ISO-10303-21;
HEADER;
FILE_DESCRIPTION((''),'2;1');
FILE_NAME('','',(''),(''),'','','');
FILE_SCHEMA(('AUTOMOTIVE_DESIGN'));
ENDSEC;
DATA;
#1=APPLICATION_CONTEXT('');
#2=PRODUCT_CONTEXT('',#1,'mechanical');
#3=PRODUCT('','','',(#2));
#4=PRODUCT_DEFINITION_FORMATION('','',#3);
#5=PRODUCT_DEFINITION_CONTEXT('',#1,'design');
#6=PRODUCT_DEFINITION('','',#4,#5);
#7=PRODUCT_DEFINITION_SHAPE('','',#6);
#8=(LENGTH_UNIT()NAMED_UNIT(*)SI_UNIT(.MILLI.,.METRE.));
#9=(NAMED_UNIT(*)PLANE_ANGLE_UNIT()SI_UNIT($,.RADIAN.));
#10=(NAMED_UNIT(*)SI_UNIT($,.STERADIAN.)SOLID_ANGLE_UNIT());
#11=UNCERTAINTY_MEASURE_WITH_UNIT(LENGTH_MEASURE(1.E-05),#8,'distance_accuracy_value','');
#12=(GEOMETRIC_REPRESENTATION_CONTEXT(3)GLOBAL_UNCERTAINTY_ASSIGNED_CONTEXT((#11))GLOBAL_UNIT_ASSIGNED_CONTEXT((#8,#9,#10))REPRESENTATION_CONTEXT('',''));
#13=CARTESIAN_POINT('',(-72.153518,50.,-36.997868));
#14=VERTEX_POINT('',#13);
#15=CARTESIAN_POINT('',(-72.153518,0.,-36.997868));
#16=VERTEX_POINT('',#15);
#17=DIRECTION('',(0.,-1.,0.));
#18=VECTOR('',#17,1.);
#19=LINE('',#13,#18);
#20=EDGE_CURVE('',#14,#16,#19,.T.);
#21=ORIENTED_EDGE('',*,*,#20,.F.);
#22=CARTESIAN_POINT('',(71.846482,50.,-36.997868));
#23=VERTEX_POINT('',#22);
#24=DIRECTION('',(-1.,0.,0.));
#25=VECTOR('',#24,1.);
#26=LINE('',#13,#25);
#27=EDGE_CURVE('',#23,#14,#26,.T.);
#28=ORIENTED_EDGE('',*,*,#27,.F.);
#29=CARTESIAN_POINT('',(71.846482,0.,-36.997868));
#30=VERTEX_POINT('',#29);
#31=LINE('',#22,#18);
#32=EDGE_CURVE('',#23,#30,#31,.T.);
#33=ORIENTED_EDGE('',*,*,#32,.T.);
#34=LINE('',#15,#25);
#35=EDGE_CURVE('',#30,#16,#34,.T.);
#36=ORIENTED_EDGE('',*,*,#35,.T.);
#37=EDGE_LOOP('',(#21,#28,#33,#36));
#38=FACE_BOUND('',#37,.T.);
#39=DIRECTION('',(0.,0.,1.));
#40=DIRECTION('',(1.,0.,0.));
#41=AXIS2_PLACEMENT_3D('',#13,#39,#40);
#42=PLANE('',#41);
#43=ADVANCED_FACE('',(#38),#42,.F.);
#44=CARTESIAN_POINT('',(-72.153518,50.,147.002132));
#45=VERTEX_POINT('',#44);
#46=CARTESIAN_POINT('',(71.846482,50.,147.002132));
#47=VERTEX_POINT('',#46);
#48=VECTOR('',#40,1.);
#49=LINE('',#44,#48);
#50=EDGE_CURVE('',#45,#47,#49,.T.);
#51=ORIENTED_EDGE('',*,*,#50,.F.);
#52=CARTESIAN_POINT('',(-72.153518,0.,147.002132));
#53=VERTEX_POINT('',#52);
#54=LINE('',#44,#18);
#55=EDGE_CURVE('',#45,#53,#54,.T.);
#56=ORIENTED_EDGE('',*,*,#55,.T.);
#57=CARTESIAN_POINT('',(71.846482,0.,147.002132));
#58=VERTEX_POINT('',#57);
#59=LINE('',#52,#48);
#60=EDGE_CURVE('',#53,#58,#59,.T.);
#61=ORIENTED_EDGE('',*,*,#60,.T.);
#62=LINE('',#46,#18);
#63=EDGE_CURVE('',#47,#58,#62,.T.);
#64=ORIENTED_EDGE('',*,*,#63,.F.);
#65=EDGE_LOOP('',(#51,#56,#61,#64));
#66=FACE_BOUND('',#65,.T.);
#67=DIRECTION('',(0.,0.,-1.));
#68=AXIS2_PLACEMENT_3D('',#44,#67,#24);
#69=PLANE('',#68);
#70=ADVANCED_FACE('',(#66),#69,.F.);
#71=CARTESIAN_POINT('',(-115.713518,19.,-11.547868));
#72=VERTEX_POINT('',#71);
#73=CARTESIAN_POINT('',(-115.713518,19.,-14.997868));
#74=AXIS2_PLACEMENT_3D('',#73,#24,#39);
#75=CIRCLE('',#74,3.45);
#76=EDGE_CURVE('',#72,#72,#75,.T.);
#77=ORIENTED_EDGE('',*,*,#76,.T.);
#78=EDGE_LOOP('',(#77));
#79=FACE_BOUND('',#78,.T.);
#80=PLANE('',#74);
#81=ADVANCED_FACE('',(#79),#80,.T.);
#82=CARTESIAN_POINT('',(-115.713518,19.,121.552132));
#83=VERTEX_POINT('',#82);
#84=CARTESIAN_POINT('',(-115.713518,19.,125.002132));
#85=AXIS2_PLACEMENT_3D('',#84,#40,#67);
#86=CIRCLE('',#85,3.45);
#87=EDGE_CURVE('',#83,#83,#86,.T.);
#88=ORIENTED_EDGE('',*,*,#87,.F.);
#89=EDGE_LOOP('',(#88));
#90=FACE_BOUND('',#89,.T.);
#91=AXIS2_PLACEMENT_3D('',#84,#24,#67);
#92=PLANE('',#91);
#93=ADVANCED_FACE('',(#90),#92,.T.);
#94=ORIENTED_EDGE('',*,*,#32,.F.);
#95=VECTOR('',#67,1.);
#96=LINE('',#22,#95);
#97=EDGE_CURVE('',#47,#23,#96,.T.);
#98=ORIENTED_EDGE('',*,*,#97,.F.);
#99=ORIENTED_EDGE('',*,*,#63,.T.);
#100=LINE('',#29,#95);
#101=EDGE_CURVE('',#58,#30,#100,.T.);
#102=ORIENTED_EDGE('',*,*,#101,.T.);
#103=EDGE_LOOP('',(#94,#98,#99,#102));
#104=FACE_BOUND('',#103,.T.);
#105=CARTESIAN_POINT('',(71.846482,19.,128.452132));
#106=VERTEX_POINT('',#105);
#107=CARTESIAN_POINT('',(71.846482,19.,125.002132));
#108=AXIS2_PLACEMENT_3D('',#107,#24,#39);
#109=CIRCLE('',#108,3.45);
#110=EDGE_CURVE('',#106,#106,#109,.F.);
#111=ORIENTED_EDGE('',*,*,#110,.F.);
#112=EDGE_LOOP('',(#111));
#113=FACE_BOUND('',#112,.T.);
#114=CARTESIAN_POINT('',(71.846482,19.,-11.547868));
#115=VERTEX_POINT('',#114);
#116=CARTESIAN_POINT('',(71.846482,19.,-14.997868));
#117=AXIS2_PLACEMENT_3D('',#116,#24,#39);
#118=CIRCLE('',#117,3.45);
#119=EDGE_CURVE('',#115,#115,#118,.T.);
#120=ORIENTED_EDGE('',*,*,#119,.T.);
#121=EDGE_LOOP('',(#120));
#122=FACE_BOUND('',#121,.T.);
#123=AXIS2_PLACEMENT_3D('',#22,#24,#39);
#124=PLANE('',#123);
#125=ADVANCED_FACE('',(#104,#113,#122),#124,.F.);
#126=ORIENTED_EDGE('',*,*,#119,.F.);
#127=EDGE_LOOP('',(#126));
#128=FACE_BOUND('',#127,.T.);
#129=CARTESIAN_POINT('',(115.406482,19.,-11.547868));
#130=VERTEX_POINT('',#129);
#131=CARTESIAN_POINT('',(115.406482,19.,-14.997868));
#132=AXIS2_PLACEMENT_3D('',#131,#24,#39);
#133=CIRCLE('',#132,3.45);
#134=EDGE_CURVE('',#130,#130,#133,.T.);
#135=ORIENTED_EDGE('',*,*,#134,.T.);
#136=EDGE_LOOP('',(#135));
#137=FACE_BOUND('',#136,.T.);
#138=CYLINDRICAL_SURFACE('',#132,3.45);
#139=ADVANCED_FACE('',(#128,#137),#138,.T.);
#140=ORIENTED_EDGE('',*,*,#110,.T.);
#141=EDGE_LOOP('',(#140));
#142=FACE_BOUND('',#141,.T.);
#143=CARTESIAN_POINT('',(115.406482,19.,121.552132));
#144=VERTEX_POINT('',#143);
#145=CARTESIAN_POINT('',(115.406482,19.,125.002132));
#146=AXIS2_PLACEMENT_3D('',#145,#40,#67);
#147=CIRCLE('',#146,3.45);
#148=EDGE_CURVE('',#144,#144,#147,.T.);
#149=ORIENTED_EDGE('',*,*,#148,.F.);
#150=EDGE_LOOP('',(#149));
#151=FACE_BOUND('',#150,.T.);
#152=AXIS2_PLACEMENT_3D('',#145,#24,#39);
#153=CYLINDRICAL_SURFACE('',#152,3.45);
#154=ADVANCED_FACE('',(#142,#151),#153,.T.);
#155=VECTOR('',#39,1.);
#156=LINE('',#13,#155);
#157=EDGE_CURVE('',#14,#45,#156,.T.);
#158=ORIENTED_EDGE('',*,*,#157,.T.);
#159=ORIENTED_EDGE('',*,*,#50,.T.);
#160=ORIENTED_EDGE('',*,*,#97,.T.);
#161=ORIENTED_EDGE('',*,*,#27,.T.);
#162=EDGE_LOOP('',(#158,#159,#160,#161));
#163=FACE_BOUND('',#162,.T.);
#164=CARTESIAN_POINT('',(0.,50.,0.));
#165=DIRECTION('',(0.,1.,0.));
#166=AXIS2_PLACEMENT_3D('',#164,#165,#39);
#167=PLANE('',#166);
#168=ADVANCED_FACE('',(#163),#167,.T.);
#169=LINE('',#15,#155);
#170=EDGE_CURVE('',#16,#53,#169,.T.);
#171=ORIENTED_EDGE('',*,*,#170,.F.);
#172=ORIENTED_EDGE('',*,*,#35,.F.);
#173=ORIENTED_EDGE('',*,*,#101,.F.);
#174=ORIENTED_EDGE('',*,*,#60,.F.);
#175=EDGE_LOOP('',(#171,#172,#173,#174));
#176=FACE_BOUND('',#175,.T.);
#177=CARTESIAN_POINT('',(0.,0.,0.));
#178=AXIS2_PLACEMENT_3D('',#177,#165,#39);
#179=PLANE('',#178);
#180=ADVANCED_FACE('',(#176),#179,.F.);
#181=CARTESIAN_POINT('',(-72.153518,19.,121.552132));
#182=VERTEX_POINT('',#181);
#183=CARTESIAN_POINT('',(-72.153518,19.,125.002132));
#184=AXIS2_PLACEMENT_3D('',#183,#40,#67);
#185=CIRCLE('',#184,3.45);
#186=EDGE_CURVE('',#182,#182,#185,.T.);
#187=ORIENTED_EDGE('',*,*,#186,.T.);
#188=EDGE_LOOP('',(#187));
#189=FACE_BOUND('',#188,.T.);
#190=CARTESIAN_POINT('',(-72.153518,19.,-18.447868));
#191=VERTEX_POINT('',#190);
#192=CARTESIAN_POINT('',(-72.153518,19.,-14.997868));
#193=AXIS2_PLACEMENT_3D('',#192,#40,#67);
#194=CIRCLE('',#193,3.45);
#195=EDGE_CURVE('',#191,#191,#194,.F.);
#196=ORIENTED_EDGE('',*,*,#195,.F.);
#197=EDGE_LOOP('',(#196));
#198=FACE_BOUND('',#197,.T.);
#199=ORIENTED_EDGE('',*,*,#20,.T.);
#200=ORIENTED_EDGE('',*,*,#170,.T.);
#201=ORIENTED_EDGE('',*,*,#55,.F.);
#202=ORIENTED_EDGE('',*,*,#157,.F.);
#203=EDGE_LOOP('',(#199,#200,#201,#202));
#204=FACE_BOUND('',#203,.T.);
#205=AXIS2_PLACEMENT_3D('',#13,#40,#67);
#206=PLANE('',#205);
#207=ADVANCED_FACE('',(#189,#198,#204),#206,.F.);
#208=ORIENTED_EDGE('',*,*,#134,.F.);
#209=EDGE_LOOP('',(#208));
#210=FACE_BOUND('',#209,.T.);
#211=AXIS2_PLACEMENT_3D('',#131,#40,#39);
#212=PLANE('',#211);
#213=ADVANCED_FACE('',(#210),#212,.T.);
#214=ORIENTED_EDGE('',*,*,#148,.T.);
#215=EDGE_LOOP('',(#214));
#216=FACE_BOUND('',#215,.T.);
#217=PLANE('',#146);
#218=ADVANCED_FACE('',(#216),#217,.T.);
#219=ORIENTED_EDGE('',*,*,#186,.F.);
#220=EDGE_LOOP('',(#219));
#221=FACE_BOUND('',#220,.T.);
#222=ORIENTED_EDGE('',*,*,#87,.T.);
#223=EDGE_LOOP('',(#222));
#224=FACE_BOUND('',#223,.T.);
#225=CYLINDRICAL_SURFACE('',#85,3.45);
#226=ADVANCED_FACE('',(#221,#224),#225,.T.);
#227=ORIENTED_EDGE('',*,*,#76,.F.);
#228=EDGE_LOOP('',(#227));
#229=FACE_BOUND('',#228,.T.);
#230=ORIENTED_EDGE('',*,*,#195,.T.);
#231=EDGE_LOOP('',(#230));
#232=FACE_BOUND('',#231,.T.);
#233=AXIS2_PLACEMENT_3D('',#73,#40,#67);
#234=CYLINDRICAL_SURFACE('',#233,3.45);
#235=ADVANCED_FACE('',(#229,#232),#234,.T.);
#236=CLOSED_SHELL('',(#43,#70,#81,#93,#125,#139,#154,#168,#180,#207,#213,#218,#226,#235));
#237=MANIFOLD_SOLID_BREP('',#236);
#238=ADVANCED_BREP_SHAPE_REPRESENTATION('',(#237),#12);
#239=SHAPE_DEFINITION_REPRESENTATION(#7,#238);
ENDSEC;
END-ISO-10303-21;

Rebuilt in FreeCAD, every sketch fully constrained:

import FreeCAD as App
import Part
import Sketcher
from FreeCAD import Vector

doc = App.newDocument("Part")
body = doc.addObject("PartDesign::Body", "Body")

sketch1 = body.newObject("Sketcher::SketchObject", "Sketch")
sketch1.AttachmentSupport = (doc.getObject("XZ_Plane"), [""])
sketch1.MapMode = "FlatFace"
sketch1.addGeometry([
    Part.LineSegment(Vector(-72.153518, -36.997868, 0), Vector(-72.153518, 147.002132, 0)),
    Part.LineSegment(Vector(-72.153518, 147.002132, 0), Vector(71.846482, 147.002132, 0)),
    Part.LineSegment(Vector(71.846482, 147.002132, 0), Vector(71.846482, -36.997868, 0)),
    Part.LineSegment(Vector(71.846482, -36.997868, 0), Vector(-72.153518, -36.997868, 0)),
], False)
sketch1.addConstraint([
    Sketcher.Constraint("Coincident", 0, 2, 1, 1),
    Sketcher.Constraint("Coincident", 1, 2, 2, 1),
    Sketcher.Constraint("Coincident", 2, 2, 3, 1),
    Sketcher.Constraint("Coincident", 3, 2, 0, 1),
    Sketcher.Constraint("Vertical", 0),
    Sketcher.Constraint("Horizontal", 1),
    Sketcher.Constraint("Vertical", 2),
    Sketcher.Constraint("Horizontal", 3),
    Sketcher.Constraint("DistanceX", 1, 1, 1, 2, 144.0),
    Sketcher.Constraint("DistanceY", 0, 1, 0, 2, 184.0),
    Sketcher.Constraint("DistanceX", 0, 2, -1, 1, 72.153518),
    Sketcher.Constraint("DistanceY", -1, 1, 0, 2, 147.002132),
])
pad1 = body.newObject("PartDesign::Pad", "Pad")
pad1.Profile = sketch1
pad1.Length = 50
pad1.Reversed = True

sketch2 = body.newObject("Sketcher::SketchObject", "Sketch001")
sketch2.AttachmentSupport = (doc.getObject("YZ_Plane"), [""])
sketch2.MapMode = "FlatFace"
sketch2.AttachmentOffset = App.Placement(Vector(0, 0, -72.153518), App.Rotation())
sketch2.addGeometry(Part.Circle(Vector(19, -14.997868, 0), Vector(0, 0, 1), 3.45), False)
sketch2.addConstraint([
    Sketcher.Constraint("Diameter", 0, 6.9),
    Sketcher.Constraint("DistanceX", -1, 1, 0, 3, 19.0),
    Sketcher.Constraint("DistanceY", 0, 3, -1, 1, 14.997868),
])
pad2 = body.newObject("PartDesign::Pad", "Pad001")
pad2.Profile = sketch2
pad2.Length = 43.56
pad2.Reversed = True
doc.recompute()

datumplane = body.newObject("PartDesign::Plane", "DatumPlane")
datumplane.AttachmentSupport = (doc.getObject("YZ_Plane"), [""])
datumplane.MapMode = "FlatFace"
datumplane.AttachmentOffset = App.Placement(Vector(0, 0, -0.153518), App.Rotation())
mirrored = body.newObject("PartDesign::Mirrored", "Mirrored")
mirrored.Originals = [pad2]
mirrored.MirrorPlane = (datumplane, [""])
body.Tip = mirrored
doc.recompute()

datumplane2 = body.newObject("PartDesign::Plane", "DatumPlane001")
datumplane2.AttachmentSupport = (doc.getObject("XY_Plane"), [""])
datumplane2.MapMode = "FlatFace"
datumplane2.AttachmentOffset = App.Placement(Vector(0, 0, 55.002132), App.Rotation())
mirrored2 = body.newObject("PartDesign::Mirrored", "Mirrored001")
mirrored2.Originals = [pad2]
mirrored2.MirrorPlane = (datumplane2, [""])
body.Tip = mirrored2

sketch3 = body.newObject("Sketcher::SketchObject", "Sketch002")
sketch3.AttachmentSupport = (doc.getObject("YZ_Plane"), [""])
sketch3.MapMode = "FlatFace"
sketch3.AttachmentOffset = App.Placement(Vector(0, 0, 71.846482), App.Rotation())
sketch3.addGeometry(Part.Circle(Vector(19, 125.002132, 0), Vector(0, 0, 1), 3.45), False)
sketch3.addConstraint([
    Sketcher.Constraint("Diameter", 0, 6.9),
    Sketcher.Constraint("DistanceX", -1, 1, 0, 3, 19.0),
    Sketcher.Constraint("DistanceY", -1, 1, 0, 3, 125.002132),
])
pad3 = body.newObject("PartDesign::Pad", "Pad002")
pad3.Profile = sketch3
pad3.Length = 43.56

doc.recompute()
